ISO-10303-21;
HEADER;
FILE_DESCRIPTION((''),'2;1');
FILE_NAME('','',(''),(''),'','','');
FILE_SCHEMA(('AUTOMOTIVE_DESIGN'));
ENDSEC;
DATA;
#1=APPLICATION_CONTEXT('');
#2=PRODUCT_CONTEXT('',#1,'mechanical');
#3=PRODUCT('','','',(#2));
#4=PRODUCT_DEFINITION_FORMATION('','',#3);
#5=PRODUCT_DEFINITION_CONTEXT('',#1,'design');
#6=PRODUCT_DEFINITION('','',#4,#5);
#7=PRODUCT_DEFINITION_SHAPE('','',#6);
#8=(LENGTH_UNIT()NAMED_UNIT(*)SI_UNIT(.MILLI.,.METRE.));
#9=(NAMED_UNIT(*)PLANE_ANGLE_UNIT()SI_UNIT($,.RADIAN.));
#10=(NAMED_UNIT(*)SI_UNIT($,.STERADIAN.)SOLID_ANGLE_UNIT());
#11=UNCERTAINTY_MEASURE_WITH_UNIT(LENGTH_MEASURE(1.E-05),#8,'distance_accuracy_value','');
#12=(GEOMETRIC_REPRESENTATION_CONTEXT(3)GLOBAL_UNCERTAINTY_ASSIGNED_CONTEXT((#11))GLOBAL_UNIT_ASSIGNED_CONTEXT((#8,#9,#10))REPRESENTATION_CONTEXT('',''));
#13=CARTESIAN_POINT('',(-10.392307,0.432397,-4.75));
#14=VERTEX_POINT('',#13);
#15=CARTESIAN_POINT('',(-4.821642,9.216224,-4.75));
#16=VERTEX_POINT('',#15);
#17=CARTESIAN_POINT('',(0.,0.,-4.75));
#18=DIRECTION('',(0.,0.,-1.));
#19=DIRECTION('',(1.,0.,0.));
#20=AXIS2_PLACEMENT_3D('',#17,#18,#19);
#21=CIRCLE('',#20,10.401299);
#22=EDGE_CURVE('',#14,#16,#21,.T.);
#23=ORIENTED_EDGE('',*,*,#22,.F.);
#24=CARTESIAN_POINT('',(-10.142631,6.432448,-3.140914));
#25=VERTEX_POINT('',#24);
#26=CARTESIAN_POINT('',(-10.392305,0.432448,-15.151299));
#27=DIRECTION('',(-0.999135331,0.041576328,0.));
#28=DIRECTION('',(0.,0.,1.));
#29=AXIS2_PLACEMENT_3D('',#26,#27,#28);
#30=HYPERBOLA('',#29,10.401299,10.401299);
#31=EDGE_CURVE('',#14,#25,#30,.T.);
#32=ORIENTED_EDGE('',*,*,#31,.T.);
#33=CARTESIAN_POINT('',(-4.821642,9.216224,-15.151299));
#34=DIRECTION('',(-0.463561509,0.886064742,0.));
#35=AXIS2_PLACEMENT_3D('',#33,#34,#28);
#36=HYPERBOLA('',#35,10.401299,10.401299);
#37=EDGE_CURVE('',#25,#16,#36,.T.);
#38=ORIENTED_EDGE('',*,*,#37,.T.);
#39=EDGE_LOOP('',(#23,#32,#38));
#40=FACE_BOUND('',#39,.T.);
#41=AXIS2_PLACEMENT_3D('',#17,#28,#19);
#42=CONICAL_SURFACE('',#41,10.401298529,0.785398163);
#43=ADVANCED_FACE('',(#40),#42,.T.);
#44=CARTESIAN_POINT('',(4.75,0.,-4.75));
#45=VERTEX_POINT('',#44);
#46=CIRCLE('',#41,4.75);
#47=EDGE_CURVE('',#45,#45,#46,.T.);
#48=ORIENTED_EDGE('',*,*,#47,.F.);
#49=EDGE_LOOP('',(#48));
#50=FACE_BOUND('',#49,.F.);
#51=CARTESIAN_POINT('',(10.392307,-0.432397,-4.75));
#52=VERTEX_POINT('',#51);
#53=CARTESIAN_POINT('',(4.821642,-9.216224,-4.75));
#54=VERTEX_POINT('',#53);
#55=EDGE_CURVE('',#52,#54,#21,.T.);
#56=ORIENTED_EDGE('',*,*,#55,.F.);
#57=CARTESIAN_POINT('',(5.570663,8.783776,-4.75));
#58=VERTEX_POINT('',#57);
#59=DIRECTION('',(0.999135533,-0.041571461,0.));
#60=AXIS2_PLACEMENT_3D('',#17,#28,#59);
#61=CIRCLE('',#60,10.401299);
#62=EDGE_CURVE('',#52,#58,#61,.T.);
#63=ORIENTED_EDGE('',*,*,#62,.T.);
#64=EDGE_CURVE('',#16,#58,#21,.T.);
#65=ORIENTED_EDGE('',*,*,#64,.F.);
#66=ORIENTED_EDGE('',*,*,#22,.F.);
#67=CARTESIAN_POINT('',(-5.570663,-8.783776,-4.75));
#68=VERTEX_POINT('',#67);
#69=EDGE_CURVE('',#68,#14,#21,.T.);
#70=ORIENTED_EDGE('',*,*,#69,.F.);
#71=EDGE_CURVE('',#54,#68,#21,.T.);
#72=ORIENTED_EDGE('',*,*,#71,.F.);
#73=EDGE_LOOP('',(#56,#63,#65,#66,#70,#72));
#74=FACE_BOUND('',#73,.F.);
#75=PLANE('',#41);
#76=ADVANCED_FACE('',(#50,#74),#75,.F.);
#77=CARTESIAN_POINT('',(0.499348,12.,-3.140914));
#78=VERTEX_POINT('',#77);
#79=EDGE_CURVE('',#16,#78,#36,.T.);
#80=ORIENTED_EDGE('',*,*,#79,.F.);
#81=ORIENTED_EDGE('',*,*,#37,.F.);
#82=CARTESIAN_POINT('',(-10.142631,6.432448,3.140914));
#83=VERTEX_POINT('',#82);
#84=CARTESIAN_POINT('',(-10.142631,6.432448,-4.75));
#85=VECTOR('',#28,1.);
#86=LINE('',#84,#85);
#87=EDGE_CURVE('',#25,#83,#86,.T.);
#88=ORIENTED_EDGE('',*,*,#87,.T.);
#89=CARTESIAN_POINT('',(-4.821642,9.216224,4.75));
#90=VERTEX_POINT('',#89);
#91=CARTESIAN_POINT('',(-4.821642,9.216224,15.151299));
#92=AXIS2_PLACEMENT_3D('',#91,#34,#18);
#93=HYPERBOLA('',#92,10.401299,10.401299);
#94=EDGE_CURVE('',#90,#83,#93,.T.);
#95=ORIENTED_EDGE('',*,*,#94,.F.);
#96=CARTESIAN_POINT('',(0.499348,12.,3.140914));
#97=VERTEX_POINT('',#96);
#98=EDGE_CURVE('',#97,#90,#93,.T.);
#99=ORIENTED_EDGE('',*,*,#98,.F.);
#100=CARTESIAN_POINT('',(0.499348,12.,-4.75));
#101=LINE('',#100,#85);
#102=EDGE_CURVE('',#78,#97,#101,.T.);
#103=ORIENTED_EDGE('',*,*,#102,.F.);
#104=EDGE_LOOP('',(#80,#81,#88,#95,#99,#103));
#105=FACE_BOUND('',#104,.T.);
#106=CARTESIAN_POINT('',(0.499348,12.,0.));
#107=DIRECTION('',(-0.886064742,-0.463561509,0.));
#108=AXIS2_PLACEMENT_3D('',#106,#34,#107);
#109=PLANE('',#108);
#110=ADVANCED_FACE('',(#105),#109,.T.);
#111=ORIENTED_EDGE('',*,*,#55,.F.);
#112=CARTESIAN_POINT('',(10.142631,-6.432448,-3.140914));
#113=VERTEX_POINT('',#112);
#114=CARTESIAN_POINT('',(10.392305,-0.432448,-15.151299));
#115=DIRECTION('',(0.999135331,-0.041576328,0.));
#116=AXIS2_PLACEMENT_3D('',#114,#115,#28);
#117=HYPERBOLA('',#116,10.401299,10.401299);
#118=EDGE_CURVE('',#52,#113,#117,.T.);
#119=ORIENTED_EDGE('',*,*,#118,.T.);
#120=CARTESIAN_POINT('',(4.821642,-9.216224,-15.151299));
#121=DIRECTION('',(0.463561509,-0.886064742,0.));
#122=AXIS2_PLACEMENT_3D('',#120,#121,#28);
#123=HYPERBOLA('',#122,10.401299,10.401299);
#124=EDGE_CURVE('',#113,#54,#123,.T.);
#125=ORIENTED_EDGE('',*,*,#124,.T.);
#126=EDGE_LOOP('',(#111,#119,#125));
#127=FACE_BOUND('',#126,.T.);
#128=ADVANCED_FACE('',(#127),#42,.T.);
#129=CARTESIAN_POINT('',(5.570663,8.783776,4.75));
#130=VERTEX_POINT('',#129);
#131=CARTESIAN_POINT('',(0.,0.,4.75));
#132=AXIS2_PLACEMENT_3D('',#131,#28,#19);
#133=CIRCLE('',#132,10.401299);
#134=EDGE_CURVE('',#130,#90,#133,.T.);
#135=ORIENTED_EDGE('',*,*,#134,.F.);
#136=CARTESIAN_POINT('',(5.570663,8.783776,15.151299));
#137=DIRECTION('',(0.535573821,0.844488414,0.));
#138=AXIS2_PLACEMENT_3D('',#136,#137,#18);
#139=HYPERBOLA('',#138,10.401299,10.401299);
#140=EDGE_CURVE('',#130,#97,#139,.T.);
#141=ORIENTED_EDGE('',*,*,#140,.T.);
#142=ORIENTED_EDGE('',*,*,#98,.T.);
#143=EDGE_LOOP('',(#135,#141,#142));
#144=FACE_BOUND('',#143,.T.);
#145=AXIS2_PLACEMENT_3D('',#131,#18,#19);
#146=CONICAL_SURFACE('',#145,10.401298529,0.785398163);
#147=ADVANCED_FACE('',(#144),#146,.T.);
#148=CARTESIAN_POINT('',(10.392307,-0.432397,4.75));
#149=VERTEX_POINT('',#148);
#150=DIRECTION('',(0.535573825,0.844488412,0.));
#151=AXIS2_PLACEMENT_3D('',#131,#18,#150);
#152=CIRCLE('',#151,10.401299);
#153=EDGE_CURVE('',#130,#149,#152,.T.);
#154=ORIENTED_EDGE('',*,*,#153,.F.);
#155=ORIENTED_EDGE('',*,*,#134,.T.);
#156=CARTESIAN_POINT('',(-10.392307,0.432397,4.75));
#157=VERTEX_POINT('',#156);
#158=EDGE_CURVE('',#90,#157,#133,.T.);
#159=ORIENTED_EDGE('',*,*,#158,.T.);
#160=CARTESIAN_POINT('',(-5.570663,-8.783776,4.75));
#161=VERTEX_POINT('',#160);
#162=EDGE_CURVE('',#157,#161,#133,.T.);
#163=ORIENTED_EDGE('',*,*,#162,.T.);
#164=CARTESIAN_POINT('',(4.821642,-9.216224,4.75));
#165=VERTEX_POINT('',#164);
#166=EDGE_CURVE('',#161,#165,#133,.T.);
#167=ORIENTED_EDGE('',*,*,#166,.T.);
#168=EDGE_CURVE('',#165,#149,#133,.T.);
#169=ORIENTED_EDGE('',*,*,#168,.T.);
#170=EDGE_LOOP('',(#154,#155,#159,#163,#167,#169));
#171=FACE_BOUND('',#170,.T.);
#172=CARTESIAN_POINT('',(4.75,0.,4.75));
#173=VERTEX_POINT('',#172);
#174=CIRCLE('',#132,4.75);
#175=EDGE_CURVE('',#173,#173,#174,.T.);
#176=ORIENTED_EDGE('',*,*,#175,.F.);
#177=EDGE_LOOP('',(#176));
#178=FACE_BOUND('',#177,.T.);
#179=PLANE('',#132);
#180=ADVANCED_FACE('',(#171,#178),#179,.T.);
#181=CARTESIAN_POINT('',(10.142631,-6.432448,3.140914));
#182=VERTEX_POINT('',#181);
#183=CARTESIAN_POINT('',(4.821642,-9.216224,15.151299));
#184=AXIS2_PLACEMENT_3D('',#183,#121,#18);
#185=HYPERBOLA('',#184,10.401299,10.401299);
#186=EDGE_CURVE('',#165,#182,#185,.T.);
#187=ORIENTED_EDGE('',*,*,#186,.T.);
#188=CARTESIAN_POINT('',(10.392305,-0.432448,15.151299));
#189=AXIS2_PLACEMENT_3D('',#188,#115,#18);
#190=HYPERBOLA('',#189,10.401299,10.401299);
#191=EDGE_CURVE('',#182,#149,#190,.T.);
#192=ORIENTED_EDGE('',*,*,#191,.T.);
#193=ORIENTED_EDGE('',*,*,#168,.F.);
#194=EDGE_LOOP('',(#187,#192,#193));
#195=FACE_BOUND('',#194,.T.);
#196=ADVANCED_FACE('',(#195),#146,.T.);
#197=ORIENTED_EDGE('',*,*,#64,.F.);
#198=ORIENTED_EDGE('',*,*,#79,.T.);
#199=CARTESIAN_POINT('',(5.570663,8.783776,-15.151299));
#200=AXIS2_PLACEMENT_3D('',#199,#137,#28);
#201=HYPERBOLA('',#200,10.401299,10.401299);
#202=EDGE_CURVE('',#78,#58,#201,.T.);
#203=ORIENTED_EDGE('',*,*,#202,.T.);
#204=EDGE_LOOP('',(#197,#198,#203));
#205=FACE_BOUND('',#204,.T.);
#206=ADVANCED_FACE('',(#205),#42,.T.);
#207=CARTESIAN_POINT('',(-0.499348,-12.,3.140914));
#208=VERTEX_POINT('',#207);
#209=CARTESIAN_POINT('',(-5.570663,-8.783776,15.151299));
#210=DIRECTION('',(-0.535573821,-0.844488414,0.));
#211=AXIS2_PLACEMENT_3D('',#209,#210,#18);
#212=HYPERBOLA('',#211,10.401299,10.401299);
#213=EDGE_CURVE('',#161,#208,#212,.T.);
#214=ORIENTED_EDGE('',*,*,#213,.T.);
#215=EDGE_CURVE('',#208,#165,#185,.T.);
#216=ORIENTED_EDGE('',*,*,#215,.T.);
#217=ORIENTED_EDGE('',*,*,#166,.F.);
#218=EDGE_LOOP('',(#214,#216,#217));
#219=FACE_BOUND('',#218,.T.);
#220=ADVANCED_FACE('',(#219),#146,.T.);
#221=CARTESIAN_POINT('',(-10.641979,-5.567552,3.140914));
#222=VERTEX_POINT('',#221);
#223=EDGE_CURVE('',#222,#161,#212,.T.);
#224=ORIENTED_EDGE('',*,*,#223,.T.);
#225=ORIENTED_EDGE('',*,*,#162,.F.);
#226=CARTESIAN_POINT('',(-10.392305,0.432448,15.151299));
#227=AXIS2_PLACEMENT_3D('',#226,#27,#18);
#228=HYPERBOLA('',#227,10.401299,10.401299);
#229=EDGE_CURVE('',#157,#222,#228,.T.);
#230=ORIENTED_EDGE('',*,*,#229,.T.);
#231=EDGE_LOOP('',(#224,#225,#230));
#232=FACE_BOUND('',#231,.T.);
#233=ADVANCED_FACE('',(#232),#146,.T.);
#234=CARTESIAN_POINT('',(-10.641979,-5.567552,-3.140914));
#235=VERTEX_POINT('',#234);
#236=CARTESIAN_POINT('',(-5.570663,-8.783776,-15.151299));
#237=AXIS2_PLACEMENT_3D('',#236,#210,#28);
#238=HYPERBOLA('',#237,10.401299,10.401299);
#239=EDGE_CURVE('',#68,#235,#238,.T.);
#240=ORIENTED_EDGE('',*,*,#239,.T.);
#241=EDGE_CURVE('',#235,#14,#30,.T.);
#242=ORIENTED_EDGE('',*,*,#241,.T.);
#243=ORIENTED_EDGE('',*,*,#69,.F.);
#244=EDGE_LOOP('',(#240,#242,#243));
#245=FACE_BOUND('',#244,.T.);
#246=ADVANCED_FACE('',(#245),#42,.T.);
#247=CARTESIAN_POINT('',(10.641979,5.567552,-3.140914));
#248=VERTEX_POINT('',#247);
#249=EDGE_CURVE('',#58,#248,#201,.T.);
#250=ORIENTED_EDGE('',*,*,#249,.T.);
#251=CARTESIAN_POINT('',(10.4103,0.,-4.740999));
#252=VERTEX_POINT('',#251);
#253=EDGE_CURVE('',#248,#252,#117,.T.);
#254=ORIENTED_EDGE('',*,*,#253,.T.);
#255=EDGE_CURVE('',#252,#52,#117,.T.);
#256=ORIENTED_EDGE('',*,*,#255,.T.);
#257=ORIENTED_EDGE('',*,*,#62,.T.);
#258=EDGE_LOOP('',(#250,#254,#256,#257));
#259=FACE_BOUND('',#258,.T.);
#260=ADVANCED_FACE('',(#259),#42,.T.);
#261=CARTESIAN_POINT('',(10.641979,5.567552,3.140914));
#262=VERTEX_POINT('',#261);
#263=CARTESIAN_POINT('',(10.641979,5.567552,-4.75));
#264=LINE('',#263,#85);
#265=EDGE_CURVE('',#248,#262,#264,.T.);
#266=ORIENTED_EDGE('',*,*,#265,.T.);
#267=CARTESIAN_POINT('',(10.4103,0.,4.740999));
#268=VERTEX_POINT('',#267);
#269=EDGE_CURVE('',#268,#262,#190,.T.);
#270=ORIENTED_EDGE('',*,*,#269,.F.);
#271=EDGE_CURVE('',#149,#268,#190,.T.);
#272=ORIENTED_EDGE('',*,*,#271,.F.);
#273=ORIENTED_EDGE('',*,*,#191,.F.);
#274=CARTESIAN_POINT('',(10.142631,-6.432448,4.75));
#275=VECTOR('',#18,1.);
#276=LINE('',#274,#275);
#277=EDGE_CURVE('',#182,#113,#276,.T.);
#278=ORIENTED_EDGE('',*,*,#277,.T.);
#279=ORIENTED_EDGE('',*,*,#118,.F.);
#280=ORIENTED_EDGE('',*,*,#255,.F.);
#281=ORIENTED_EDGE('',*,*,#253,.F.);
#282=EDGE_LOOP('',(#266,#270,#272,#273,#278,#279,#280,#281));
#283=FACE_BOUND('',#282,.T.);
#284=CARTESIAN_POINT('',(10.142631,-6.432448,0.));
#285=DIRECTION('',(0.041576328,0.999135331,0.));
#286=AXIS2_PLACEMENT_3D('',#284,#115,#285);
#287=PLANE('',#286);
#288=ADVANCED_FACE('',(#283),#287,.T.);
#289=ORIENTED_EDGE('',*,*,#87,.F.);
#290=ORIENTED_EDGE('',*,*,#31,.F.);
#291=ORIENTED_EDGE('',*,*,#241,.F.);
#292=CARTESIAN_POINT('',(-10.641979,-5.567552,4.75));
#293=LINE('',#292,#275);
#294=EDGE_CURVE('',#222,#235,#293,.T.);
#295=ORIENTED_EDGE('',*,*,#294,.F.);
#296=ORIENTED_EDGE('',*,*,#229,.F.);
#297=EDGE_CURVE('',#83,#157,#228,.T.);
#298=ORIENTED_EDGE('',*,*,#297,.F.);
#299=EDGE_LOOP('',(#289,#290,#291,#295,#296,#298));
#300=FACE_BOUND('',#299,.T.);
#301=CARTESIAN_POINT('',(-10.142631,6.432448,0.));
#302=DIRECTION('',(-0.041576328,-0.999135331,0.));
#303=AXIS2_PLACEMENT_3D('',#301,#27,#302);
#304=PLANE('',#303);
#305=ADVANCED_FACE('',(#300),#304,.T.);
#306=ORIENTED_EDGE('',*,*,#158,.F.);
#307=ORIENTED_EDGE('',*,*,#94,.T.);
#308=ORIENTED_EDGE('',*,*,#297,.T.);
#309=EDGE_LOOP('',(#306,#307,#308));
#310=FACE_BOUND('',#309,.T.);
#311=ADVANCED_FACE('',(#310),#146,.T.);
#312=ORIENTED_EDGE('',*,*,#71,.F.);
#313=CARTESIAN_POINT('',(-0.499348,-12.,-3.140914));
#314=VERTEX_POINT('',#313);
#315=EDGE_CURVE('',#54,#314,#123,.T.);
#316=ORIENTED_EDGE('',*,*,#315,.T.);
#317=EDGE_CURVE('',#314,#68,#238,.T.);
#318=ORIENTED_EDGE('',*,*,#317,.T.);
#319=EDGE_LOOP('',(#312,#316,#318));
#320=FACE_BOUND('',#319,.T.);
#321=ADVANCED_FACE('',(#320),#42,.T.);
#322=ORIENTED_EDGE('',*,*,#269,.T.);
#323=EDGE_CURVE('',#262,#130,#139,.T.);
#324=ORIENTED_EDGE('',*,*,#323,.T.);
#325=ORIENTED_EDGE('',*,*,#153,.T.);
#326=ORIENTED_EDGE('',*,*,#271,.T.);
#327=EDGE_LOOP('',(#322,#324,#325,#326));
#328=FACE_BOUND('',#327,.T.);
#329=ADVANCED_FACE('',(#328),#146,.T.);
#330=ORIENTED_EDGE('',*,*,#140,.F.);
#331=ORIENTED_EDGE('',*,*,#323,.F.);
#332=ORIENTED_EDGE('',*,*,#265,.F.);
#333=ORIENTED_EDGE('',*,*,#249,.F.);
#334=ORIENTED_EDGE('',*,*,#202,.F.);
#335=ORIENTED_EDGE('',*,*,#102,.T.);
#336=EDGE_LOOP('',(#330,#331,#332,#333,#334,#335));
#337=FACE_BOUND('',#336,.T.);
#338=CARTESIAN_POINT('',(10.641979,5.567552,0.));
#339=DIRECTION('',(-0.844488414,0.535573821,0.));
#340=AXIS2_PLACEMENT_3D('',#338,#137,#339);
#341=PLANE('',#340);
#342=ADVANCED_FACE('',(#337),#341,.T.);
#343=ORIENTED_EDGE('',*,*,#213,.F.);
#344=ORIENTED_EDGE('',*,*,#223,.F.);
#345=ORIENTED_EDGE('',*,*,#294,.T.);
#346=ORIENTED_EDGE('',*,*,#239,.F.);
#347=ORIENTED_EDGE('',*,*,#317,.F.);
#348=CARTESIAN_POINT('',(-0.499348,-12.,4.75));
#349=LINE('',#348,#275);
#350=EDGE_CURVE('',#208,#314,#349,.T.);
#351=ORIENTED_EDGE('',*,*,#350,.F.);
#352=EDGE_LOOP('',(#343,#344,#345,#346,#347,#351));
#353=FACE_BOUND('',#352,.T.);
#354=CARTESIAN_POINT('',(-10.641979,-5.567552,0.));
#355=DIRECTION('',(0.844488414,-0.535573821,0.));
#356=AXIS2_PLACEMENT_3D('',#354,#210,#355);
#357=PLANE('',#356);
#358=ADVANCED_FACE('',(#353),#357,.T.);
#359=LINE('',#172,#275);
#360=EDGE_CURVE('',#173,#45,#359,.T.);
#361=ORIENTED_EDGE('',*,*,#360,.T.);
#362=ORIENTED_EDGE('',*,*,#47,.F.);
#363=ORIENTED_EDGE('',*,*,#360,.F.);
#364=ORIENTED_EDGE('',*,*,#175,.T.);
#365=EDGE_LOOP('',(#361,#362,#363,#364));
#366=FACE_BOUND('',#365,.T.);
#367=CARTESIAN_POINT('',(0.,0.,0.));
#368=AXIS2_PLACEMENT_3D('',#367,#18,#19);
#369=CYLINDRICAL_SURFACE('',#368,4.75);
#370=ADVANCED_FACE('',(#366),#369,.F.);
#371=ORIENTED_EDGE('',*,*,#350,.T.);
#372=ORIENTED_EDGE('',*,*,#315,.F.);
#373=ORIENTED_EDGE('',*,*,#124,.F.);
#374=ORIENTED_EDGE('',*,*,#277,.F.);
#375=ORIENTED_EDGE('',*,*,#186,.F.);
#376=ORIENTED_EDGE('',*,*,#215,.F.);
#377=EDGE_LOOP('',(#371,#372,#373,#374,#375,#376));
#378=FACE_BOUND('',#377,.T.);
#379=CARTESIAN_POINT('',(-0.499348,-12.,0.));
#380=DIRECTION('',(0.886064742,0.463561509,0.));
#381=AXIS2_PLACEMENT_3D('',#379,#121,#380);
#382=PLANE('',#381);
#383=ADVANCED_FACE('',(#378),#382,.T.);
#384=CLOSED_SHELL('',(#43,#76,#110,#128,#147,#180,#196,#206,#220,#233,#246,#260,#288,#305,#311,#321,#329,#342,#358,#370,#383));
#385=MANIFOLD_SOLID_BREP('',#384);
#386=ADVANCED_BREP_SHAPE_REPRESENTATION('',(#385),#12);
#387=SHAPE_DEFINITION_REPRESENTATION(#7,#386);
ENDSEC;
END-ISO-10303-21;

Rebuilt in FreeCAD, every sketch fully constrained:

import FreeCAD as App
import Part
import Sketcher

V = App.Vector
Q = App.Units.Quantity


def faces_at(feature, points):
    """Names of the faces that lie closest to the given points."""
    faces = feature.Shape.Faces
    near = lambda p: min(range(len(faces)), key=lambda i: faces[i].distToShape(Part.Vertex(*p))[0])
    return sorted({f"Face{near(p) + 1}" for p in points})


def add_polygon(sketch, points):
    """Adds a closed chain of lines whose ends are joined by coincident constraints."""
    first, n = sketch.GeometryCount, len(points)
    for a, b in zip(points, points[1:] + points[:1]):
        sketch.addGeometry(Part.LineSegment(App.Vector(*a, 0), App.Vector(*b, 0)), False)
    for i in range(n):
        sketch.addConstraint(Sketcher.Constraint("Coincident", first + i, 2, first + (i + 1) % n, 1))

doc = App.newDocument("Part")
params = doc.addObject("Spreadsheet::Sheet", "Params")
for row, (alias, value) in enumerate([
    ("sketch1_diameter", "9.5 mm"),
    ("pad1_length", "9.5 mm"),
    ("pad2_length", "9.5 mm"),
    ("draft_angle", "45 deg"),
    ("pad3_length", "9.5 mm"),
    ("draft2_angle", "45 deg"),
], start=1):
    params.set(f"A{row}", alias)
    params.set(f"B{row}", "=" + value)
    params.setAlias(f"B{row}", alias)

body = doc.addObject("PartDesign::Body", "Body")

sketch1 = doc.addObject("Sketcher::SketchObject", "Sketch")
body.addObject(sketch1)
sketch1.AttachmentSupport = (doc.XY_Plane, [""])
sketch1.MapMode = "FlatFace"
add_polygon(sketch1, [(10.1, -6.4), (10.6, 5.6), (0.5, 12), (-10.1, 6.4), (-10.6, -5.6), (-0.5, -12)])
sketch1.addGeometry(Part.Circle(V(0, 0, 0), V(0, 0, 1), 4.8), False)
sketch1.addConstraint([
    Sketcher.Constraint("Coincident", 6, 3, -1, 1),
    Sketcher.Constraint("Symmetric", 0, 2, 3, 2, -1, 1),
    Sketcher.Constraint("Symmetric", 1, 2, 4, 2, -1, 1),
    Sketcher.Constraint("Symmetric", 2, 2, 5, 2, -1, 1),
    Sketcher.Constraint("Equal", 0, 1),
    Sketcher.Constraint("Equal", 1, 2),
    Sketcher.Constraint("Diameter", 6, Q("9.5 mm")),
    Sketcher.Constraint("DistanceY", -1, 1, 1, 2, Q("12 mm")),
    Sketcher.Constraint("DistanceY", 3, 2, 2, 2, Q("12 mm")),
    Sketcher.Constraint("DistanceX", -1, 1, 0, 2, Q("10.641979 mm")),
    Sketcher.Constraint("DistanceX", 2, 2, -1, 1, Q("10.142631 mm")),
])
sketch1.setExpression("Constraints[12]", "Params.sketch1_diameter")
pad1 = doc.addObject("PartDesign::Pad", "Pad")
body.addObject(pad1)
pad1.Profile = sketch1
pad1.setExpression("Length", "Params.pad1_length")
pad1.Midplane = True
body2 = doc.addObject("PartDesign::Body", "Body001")

sketch2 = doc.addObject("Sketcher::SketchObject", "Sketch001")
body2.addObject(sketch2)
sketch2.AttachmentSupport = (doc.getObject("XY_Plane001"), [""])
sketch2.MapMode = "FlatFace"
sketch2.AttachmentOffset = App.Placement(V(0, 0, 4.75), App.Rotation())
add_polygon(sketch2, [(-24, 26), (-24, -26), (24, -26), (24, 26)])
sketch2.addGeometry(Part.Circle(V(0, 0, 0), V(0, 0, 1), 10), False)
sketch2.addConstraint([
    Sketcher.Constraint("Vertical", 0),
    Sketcher.Constraint("Horizontal", 1),
    Sketcher.Constraint("Vertical", 2),
    Sketcher.Constraint("Horizontal", 3),
    Sketcher.Constraint("Coincident", 4, 3, -1, 1),
    Sketcher.Constraint("Symmetric", 0, 2, 2, 2, -1, 1),
    Sketcher.Constraint("DistanceX", 1, 1, 1, 2, Q("48.976 mm")),
    Sketcher.Constraint("DistanceY", 0, 2, 0, 1, Q("51.692 mm")),
    Sketcher.Constraint("Diameter", 4, Q("20.802597 mm")),
])
pad2 = doc.addObject("PartDesign::Pad", "Pad001")
body2.addObject(pad2)
pad2.Profile = sketch2
pad2.setExpression("Length", "Params.pad2_length")
pad2.Reversed = True
doc.recompute()

datumplane = doc.addObject("PartDesign::Plane", "DatumPlane")
body2.addObject(datumplane)
datumplane.AttachmentSupport = (doc.getObject("XY_Plane001"), [""])
datumplane.MapMode = "FlatFace"
datumplane.AttachmentOffset = App.Placement(V(0, 0, 4.75), App.Rotation())
draft = doc.addObject("PartDesign::Draft", "Draft")
body2.addObject(draft)
draft.Base = (pad2, faces_at(pad2, [
    (0, -25.846, 0),
    (24.488, 0, 0),
    (0, 25.846, 0),
    (-24.488, 0, 0),
    (-10.401, 0, 0),
]))
draft.NeutralPlane = (datumplane, [""])
draft.setExpression("Angle", "Params.draft_angle")
draft.Reversed = True
doc.recompute()

boolean = doc.addObject("PartDesign::Boolean", "Boolean")
body.addObject(boolean)
boolean.Type = "Cut"
boolean.addObjects([body2])
body3 = doc.addObject("PartDesign::Body", "Body002")

sketch3 = doc.addObject("Sketcher::SketchObject", "Sketch002")
body3.addObject(sketch3)
sketch3.AttachmentSupport = (doc.getObject("XY_Plane002"), [""])
sketch3.MapMode = "FlatFace"
sketch3.AttachmentOffset = App.Placement(V(0, 0, -4.75), App.Rotation())
add_polygon(sketch3, [(-24, -26), (-24, 26), (24, 26), (24, -26)])
sketch3.addGeometry(Part.Circle(V(0, 0, 0), V(0, 0, 1), 10), False)
sketch3.addConstraint([
    Sketcher.Constraint("Vertical", 0),
    Sketcher.Constraint("Horizontal", 1),
    Sketcher.Constraint("Vertical", 2),
    Sketcher.Constraint("Horizontal", 3),
    Sketcher.Constraint("Coincident", 4, 3, -1, 1),
    Sketcher.Constraint("Symmetric", 0, 2, 2, 2, -1, 1),
    Sketcher.Constraint("DistanceX", 1, 1, 1, 2, Q("48.976 mm")),
    Sketcher.Constraint("DistanceY", 0, 1, 0, 2, Q("51.692 mm")),
    Sketcher.Constraint("Diameter", 4, Q("20.802597 mm")),
])
pad3 = doc.addObject("PartDesign::Pad", "Pad002")
body3.addObject(pad3)
pad3.Profile = sketch3
pad3.setExpression("Length", "Params.pad3_length")
doc.recompute()

datumplane2 = doc.addObject("PartDesign::Plane", "DatumPlane001")
body3.addObject(datumplane2)
datumplane2.AttachmentSupport = (doc.getObject("XY_Plane002"), [""])
datumplane2.MapMode = "FlatFace"
datumplane2.AttachmentOffset = App.Placement(V(0, 0, -4.75), App.Rotation())
draft2 = doc.addObject("PartDesign::Draft", "Draft001")
body3.addObject(draft2)
draft2.Base = (pad3, faces_at(pad3, [
    (0, -25.846, 0),
    (24.488, 0, 0),
    (0, 25.846, 0),
    (-24.488, 0, 0),
    (-10.401, 0, 0),
]))
draft2.NeutralPlane = (datumplane2, [""])
draft2.setExpression("Angle", "Params.draft2_angle")
draft2.Reversed = False
doc.recompute()

boolean2 = doc.addObject("PartDesign::Boolean", "Boolean001")
body.addObject(boolean2)
boolean2.Type = "Cut"
boolean2.addObjects([body3])

doc.recompute()
